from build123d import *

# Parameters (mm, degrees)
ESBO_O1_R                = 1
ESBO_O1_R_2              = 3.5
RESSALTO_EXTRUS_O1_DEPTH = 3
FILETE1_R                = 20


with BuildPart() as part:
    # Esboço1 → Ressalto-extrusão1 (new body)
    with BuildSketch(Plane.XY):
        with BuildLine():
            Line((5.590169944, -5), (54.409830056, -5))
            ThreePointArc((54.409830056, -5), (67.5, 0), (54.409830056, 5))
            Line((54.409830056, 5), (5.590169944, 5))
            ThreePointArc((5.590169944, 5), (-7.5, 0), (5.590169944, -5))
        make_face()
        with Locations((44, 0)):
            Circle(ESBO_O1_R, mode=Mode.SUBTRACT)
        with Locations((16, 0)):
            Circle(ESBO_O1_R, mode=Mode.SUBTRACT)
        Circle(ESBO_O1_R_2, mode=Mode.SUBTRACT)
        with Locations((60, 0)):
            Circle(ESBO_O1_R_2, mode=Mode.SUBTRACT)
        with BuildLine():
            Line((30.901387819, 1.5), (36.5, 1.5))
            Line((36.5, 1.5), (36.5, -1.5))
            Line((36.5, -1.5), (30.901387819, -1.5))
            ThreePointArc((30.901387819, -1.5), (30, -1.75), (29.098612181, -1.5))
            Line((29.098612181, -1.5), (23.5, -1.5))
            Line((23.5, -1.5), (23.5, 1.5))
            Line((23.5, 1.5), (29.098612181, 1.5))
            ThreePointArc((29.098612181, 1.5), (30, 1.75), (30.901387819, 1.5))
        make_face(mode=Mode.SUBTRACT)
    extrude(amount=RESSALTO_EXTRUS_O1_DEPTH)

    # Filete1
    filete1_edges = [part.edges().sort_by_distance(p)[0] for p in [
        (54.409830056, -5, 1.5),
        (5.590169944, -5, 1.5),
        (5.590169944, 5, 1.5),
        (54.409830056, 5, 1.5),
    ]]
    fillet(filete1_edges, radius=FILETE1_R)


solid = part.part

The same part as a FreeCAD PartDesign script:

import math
import FreeCAD as App
import Part
import Sketcher
from FreeCAD import Vector


def edges_at(feature, points):
    """Names of the edges that pass closest to the given points."""
    edges = feature.Shape.Edges
    near = lambda p: min(range(len(edges)), key=lambda i: edges[i].distToShape(Part.Vertex(*p))[0])
    return sorted({f"Edge{near(p) + 1}" for p in points})

doc = App.newDocument("Part")
body = doc.addObject("PartDesign::Body", "Body")

sketch1 = body.newObject("Sketcher::SketchObject", "Sketch")
sketch1.AttachmentSupport = (doc.getObject("XY_Plane"), [""])
sketch1.MapMode = "FlatFace"
sketch1.addGeometry([
    Part.LineSegment(Vector(5.6, -5, 0), Vector(54.4, -5, 0)),
    Part.ArcOfCircle(Part.Circle(Vector(60, 0, 0), Vector(0, 0, 1), 7.5), math.radians(-138), math.radians(138)),
    Part.LineSegment(Vector(54.4, 5, 0), Vector(5.6, 5, 0)),
    Part.ArcOfCircle(Part.Circle(Vector(0, 0, 0), Vector(0, 0, 1), 7.5), math.radians(42), math.radians(318)),
    Part.Circle(Vector(0, 0, 0), Vector(0, 0, 1), 3.5),
    Part.Circle(Vector(16, 0, 0), Vector(0, 0, 1), 1),
    Part.ArcOfCircle(Part.Circle(Vector(30, 0, 0), Vector(0, 0, 1), 1.8), math.radians(59), math.radians(121)),
    Part.LineSegment(Vector(30.9, 1.5, 0), Vector(36.5, 1.5, 0)),
    Part.LineSegment(Vector(36.5, 1.5, 0), Vector(36.5, -1.5, 0)),
    Part.LineSegment(Vector(36.5, -1.5, 0), Vector(30.9, -1.5, 0)),
    Part.ArcOfCircle(Part.Circle(Vector(30, 0, 0), Vector(0, 0, 1), 1.8), math.radians(-121), math.radians(-59)),
    Part.LineSegment(Vector(29.1, -1.5, 0), Vector(23.5, -1.5, 0)),
    Part.LineSegment(Vector(23.5, -1.5, 0), Vector(23.5, 1.5, 0)),
    Part.LineSegment(Vector(23.5, 1.5, 0), Vector(29.1, 1.5, 0)),
    Part.Circle(Vector(44, 0, 0), Vector(0, 0, 1), 1),
    Part.Circle(Vector(60, 0, 0), Vector(0, 0, 1), 3.5),
], False)
sketch1.addConstraint([
    Sketcher.Constraint("Coincident", 0, 2, 1, 1),
    Sketcher.Constraint("Coincident", 1, 2, 2, 1),
    Sketcher.Constraint("Coincident", 2, 2, 3, 1),
    Sketcher.Constraint("Coincident", 3, 2, 0, 1),
    Sketcher.Constraint("Coincident", 6, 1, 7, 1),
    Sketcher.Constraint("Coincident", 7, 2, 8, 1),
    Sketcher.Constraint("Coincident", 8, 2, 9, 1),
    Sketcher.Constraint("Coincident", 9, 2, 10, 2),
    Sketcher.Constraint("Coincident", 10, 1, 11, 1),
    Sketcher.Constraint("Coincident", 11, 2, 12, 1),
    Sketcher.Constraint("Coincident", 12, 2, 13, 1),
    Sketcher.Constraint("Coincident", 13, 2, 6, 2),
    Sketcher.Constraint("Horizontal", 0),
    Sketcher.Constraint("Horizontal", 2),
    Sketcher.Constraint("Horizontal", 7),
    Sketcher.Constraint("Vertical", 8),
    Sketcher.Constraint("Horizontal", 9),
    Sketcher.Constraint("Horizontal", 11),
    Sketcher.Constraint("Vertical", 12),
    Sketcher.Constraint("Horizontal", 13),
    Sketcher.Constraint("Coincident", 3, 3, -1, 1),
    Sketcher.Constraint("Coincident", 4, 3, -1, 1),
    Sketcher.Constraint("Coincident", 10, 3, 6, 3),
    Sketcher.Constraint("Coincident", 15, 3, 1, 3),
    Sketcher.Constraint("Equal", 1, 3),
    Sketcher.Constraint("Equal", 6, 10),
    Sketcher.Constraint("Equal", 5, 14),
    Sketcher.Constraint("Equal", 4, 15),
    Sketcher.Constraint("Symmetric", 0, 2, 1, 2, -1),
    Sketcher.Constraint("Symmetric", 6, 1, 9, 2, -1),
    Sketcher.Constraint("PointOnObject", 5, 3, -1),
    Sketcher.Constraint("PointOnObject", 14, 3, -1),
    Sketcher.Constraint("Horizontal", 9, 2, 10, 1),
    Sketcher.Constraint("Horizontal", 7, 2, 12, 2),
    Sketcher.Constraint("Equal", 9, 11),
    Sketcher.Constraint("Diameter", 4, 7.0),
    Sketcher.Constraint("Diameter", 5, 2.0),
    Sketcher.Constraint("Radius", 1, 7.5),
    Sketcher.Constraint("DistanceY", 8, 2, 8, 1, 3.0),
    Sketcher.Constraint("Radius", 6, 1.75),
    Sketcher.Constraint("DistanceX", -1, 1, 1, 3, 60.0),
    Sketcher.Constraint("DistanceX", -1, 1, 5, 3, 16.0),
    Sketcher.Constraint("DistanceX", -1, 1, 6, 3, 30.0),
    Sketcher.Constraint("DistanceX", -1, 1, 14, 3, 44.0),
    Sketcher.Constraint("DistanceY", 0, 2, -1, 1, 5.0),
    Sketcher.Constraint("DistanceX", -1, 1, 7, 2, 36.5),
])
pad1 = body.newObject("PartDesign::Pad", "Pad")
pad1.Profile = sketch1
pad1.Length = 3
doc.recompute()

fillet = body.newObject("PartDesign::Fillet", "Fillet")
fillet.Base = (pad1, edges_at(pad1, [
    (54.41, -5, 1.5),
    (5.59, -5, 1.5),
    (5.59, 5, 1.5),
    (54.41, 5, 1.5),
]))
fillet.Radius = 20

doc.recompute()
